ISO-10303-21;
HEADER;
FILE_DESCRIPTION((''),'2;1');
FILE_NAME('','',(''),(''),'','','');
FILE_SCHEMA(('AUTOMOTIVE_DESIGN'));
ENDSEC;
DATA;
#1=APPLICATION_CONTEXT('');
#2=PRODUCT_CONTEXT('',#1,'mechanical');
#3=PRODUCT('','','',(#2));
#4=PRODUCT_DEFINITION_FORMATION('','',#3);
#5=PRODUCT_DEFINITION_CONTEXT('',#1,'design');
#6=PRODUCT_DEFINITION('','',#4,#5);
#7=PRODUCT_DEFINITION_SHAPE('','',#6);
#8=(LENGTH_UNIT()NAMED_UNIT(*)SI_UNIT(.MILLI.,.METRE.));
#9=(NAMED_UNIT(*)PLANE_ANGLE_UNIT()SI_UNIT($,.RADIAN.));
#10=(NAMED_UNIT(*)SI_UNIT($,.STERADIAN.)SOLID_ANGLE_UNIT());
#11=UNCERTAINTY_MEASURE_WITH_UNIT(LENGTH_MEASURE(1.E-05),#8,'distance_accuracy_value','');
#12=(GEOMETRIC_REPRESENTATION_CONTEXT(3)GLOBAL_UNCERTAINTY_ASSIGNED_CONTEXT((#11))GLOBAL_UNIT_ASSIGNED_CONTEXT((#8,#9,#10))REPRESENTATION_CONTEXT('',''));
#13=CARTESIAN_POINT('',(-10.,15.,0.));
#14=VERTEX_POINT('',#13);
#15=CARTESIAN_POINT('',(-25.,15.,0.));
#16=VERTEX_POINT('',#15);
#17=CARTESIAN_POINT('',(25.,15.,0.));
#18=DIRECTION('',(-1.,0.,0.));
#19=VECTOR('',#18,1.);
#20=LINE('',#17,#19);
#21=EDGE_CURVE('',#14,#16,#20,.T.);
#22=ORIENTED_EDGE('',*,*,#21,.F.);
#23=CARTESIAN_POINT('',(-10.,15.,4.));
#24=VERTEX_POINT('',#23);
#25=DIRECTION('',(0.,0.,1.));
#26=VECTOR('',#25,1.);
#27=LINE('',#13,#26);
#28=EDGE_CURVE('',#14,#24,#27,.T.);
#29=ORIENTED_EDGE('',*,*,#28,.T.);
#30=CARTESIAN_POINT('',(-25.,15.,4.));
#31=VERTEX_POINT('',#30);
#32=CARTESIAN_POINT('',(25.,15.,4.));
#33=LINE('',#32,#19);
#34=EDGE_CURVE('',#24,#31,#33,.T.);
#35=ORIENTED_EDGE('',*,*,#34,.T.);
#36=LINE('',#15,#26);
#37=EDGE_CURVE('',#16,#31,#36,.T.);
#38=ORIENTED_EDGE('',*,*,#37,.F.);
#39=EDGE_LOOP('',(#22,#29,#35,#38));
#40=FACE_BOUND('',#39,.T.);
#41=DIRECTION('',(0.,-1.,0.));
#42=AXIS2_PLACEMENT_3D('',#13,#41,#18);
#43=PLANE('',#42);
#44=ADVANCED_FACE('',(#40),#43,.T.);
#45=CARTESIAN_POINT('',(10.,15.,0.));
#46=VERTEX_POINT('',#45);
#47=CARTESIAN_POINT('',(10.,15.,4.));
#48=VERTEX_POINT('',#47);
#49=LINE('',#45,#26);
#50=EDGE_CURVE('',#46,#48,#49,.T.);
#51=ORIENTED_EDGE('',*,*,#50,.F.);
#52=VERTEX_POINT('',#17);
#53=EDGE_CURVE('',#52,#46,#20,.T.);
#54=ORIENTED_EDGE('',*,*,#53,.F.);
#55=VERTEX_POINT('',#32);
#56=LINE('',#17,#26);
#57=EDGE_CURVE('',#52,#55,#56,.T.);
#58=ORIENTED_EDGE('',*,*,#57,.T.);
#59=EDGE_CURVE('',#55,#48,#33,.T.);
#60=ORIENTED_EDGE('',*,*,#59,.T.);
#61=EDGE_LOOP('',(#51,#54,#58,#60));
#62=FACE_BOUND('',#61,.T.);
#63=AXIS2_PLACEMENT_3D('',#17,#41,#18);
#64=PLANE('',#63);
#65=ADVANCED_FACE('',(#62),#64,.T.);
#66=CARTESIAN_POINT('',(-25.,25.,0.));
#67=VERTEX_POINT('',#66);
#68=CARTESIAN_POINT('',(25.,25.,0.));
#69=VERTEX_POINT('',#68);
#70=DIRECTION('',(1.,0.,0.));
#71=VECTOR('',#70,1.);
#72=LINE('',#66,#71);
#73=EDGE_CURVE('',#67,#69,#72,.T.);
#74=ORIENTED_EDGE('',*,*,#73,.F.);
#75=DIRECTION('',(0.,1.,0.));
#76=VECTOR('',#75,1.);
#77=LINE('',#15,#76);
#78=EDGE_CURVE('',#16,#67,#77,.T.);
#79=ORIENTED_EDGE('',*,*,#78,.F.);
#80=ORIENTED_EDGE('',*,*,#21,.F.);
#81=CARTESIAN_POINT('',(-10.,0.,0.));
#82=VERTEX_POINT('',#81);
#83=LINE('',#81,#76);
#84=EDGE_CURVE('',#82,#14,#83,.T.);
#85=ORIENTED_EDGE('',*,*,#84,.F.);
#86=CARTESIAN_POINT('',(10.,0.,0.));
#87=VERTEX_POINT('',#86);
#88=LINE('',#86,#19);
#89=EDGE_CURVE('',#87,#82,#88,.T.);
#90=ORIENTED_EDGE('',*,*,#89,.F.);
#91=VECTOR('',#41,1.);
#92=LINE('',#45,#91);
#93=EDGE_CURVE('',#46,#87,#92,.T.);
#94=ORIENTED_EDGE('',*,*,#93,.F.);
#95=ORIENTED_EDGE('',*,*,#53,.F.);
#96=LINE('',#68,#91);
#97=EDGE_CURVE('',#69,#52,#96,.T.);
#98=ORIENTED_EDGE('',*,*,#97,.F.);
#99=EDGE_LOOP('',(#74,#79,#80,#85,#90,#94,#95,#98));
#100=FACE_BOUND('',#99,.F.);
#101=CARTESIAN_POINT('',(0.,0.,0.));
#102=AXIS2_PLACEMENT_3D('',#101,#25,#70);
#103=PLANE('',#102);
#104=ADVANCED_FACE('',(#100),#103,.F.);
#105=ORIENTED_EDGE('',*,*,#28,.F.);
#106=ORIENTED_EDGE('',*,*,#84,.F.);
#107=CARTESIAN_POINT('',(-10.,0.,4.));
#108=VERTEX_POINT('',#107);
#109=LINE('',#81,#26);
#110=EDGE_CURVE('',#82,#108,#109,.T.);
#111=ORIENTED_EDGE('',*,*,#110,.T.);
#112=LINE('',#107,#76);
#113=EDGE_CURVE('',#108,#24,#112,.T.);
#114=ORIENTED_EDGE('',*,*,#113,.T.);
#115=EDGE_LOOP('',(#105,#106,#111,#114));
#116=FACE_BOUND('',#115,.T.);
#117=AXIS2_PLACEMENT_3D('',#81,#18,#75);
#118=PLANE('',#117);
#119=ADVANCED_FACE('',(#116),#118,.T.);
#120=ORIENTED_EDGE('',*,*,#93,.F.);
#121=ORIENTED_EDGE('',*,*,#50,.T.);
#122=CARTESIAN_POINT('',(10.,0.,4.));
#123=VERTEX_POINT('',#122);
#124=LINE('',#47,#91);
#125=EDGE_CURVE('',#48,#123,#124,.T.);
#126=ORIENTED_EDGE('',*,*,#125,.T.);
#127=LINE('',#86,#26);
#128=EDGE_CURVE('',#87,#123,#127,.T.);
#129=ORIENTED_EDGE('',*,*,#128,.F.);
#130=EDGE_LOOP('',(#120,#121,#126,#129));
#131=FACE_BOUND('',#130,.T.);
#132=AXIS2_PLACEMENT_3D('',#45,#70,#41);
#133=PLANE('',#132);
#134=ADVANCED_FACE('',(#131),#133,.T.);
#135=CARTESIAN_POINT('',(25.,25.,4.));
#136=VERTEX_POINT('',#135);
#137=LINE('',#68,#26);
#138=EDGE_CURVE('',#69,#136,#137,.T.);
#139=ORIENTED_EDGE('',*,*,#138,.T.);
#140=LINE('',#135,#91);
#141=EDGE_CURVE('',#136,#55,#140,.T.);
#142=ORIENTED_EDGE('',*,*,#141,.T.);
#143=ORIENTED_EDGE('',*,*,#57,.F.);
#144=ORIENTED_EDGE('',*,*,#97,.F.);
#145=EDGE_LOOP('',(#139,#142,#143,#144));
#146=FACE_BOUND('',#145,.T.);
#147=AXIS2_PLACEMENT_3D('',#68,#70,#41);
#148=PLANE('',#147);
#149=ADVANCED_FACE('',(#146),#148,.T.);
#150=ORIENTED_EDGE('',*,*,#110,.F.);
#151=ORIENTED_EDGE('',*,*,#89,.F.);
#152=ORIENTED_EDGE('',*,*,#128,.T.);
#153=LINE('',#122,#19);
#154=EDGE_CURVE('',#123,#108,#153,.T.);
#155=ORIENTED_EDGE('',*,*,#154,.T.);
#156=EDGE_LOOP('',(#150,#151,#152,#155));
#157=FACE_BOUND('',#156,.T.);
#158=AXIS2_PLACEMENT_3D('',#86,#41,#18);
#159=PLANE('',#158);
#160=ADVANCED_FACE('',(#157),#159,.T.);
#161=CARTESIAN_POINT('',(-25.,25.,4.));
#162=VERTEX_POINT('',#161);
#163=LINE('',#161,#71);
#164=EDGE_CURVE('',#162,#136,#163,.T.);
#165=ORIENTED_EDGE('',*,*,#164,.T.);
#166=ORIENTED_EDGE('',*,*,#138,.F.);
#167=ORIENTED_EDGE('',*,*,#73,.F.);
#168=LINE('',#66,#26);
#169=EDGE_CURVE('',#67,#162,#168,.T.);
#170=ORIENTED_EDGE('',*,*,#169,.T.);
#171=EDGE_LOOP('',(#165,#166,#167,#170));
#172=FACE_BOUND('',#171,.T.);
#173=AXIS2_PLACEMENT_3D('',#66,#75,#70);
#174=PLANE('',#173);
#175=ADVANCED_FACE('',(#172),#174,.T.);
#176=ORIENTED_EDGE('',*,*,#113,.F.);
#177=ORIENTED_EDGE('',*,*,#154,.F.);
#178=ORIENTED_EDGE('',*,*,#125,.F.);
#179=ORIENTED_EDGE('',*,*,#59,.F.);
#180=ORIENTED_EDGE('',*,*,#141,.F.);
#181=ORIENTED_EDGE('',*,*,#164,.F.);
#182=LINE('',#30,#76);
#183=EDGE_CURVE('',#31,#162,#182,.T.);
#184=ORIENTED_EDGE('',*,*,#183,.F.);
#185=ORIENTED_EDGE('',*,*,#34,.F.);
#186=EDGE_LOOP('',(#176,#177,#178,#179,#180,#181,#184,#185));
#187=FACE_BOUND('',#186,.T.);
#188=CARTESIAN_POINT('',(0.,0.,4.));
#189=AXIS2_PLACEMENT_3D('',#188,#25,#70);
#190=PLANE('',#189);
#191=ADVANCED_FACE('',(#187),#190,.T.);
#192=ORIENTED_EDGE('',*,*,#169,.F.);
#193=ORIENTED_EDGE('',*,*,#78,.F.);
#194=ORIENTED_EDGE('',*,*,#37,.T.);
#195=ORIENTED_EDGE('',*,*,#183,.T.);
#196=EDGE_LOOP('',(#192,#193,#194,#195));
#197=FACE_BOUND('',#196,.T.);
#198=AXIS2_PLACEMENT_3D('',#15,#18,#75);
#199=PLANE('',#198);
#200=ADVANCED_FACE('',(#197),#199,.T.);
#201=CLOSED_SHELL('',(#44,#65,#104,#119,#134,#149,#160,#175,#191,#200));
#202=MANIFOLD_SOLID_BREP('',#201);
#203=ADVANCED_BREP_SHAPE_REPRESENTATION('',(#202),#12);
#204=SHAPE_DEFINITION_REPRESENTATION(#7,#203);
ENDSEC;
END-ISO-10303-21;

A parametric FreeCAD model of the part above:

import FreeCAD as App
import Part
import Sketcher

V = App.Vector
Q = App.Units.Quantity


def add_polygon(sketch, points):
    """Adds a closed chain of lines whose ends are joined by coincident constraints."""
    first, n = sketch.GeometryCount, len(points)
    for a, b in zip(points, points[1:] + points[:1]):
        sketch.addGeometry(Part.LineSegment(App.Vector(*a, 0), App.Vector(*b, 0)), False)
    for i in range(n):
        sketch.addConstraint(Sketcher.Constraint("Coincident", first + i, 2, first + (i + 1) % n, 1))

doc = App.newDocument("Part")
params = doc.addObject("Spreadsheet::Sheet", "Params")
for row, (alias, value) in enumerate([
    ("sketch1_width", "20 mm"),
    ("sketch1_width2", "15 mm"),
    ("sketch1_height", "10 mm"),
    ("pad1_length", "4 mm"),
], start=1):
    params.set(f"A{row}", alias)
    params.set(f"B{row}", "=" + value)
    params.setAlias(f"B{row}", alias)

body = doc.addObject("PartDesign::Body", "Body")

sketch1 = body.newObject("Sketcher::SketchObject", "Sketch")
sketch1.AttachmentSupport = (doc.getObject("XY_Plane"), [""])
sketch1.MapMode = "FlatFace"
add_polygon(sketch1, [(-10, 0), (10, 0), (10, 15), (25, 15), (25, 25), (-25, 25), (-25, 15), (-10, 15)])
sketch1.addConstraint(Sketcher.Constraint("Horizontal", 0))
sketch1.addConstraint(Sketcher.Constraint("Vertical", 1))
sketch1.addConstraint(Sketcher.Constraint("Horizontal", 2))
sketch1.addConstraint(Sketcher.Constraint("Vertical", 3))
sketch1.addConstraint(Sketcher.Constraint("Horizontal", 4))
sketch1.addConstraint(Sketcher.Constraint("Vertical", 5))
sketch1.addConstraint(Sketcher.Constraint("Horizontal", 6))
sketch1.addConstraint(Sketcher.Constraint("Vertical", 7))
sketch1.addConstraint(Sketcher.Constraint("Symmetric", 0, 2, 7, 2, -1, 1))
sketch1.addConstraint(Sketcher.Constraint("Symmetric", 2, 2, 5, 2, -2))
sketch1.addConstraint(Sketcher.Constraint("Equal", 6, 1))
sketch1.addConstraint(Sketcher.Constraint("DistanceX", 0, 1, 0, 2, Q("20 mm")))
sketch1.addConstraint(Sketcher.Constraint("DistanceX", 2, 1, 2, 2, Q("15 mm")))
sketch1.addConstraint(Sketcher.Constraint("DistanceY", 3, 1, 3, 2, Q("10 mm")))
sketch1.setExpression("Constraints[19]", "Params.sketch1_width")
sketch1.setExpression("Constraints[20]", "Params.sketch1_width2")
sketch1.setExpression("Constraints[21]", "Params.sketch1_height")
pad1 = body.newObject("PartDesign::Pad", "Pad")
pad1.Profile = sketch1
pad1.setExpression("Length", "Params.pad1_length")

doc.recompute()
